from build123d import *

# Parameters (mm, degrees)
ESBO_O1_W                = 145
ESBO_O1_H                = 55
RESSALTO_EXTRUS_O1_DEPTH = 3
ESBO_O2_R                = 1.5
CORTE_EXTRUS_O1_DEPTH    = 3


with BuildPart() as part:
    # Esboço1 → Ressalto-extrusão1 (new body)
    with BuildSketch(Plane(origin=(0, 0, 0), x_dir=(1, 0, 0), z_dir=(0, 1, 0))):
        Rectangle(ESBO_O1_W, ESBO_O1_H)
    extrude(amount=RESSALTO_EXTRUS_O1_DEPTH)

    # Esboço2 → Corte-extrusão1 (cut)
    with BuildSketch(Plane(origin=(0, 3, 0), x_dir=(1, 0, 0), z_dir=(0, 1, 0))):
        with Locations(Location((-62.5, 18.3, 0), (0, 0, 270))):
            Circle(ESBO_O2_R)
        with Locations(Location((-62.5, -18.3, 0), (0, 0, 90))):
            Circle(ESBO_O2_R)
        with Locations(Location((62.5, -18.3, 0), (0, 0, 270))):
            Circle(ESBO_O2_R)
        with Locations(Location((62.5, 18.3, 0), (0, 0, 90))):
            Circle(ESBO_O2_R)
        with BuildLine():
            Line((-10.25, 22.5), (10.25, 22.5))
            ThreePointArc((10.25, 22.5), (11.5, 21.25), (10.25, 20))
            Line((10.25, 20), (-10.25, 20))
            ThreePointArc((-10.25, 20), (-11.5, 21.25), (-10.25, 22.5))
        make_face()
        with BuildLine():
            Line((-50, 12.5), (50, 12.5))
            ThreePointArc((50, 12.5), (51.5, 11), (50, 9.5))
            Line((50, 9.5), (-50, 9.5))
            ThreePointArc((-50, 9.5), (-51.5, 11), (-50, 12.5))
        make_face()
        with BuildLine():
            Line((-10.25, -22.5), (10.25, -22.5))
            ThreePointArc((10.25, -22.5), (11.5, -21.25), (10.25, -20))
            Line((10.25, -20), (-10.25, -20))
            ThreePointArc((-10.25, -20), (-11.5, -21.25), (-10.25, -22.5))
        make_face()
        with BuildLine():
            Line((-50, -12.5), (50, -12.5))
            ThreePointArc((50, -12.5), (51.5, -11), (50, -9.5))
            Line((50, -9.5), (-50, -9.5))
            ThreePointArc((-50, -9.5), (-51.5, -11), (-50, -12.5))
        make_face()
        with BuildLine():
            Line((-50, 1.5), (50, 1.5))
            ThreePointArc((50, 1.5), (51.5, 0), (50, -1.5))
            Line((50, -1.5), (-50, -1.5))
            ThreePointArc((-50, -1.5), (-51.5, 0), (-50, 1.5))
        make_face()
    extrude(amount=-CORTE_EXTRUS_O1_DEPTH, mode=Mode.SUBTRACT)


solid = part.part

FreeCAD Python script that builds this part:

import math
import FreeCAD as App
import Part
import Sketcher

V = App.Vector

doc = App.newDocument("Part")
body = doc.addObject("PartDesign::Body", "Body")

# Sketch on XZ plane
sketch1 = body.newObject("Sketcher::SketchObject", "Sketch")
sketch1.AttachmentSupport = (doc.getObject("XZ_Plane"), [""])
sketch1.MapMode = "FlatFace"
sketch1.addGeometry(Part.LineSegment(V(-72, -28, 0), V(-72, 28, 0)), False)
sketch1.addGeometry(Part.LineSegment(V(-72, 28, 0), V(72, 28, 0)), False)
sketch1.addGeometry(Part.LineSegment(V(72, 28, 0), V(72, -28, 0)), False)
sketch1.addGeometry(Part.LineSegment(V(72, -28, 0), V(-72, -28, 0)), False)
sketch1.addConstraint(Sketcher.Constraint("Coincident", 0, 2, 1, 1))
sketch1.addConstraint(Sketcher.Constraint("Coincident", 1, 2, 2, 1))
sketch1.addConstraint(Sketcher.Constraint("Coincident", 2, 2, 3, 1))
sketch1.addConstraint(Sketcher.Constraint("Coincident", 3, 2, 0, 1))
sketch1.addConstraint(Sketcher.Constraint("Vertical", 0))
sketch1.addConstraint(Sketcher.Constraint("Horizontal", 1))
sketch1.addConstraint(Sketcher.Constraint("Vertical", 2))
sketch1.addConstraint(Sketcher.Constraint("Horizontal", 3))
sketch1.addConstraint(Sketcher.Constraint("Symmetric", 0, 2, 2, 2, -1, 1))
sketch1.addConstraint(Sketcher.Constraint("DistanceX", 1, 1, 1, 2, 145.0))
sketch1.addConstraint(Sketcher.Constraint("DistanceY", 0, 1, 0, 2, 55.0))
pad1 = body.newObject("PartDesign::Pad", "Pad")
pad1.Profile = sketch1
pad1.Length = 3
pad1.Reversed = True

# Sketch on XZ plane
sketch2 = body.newObject("Sketcher::SketchObject", "Sketch001")
sketch2.AttachmentSupport = (doc.getObject("XZ_Plane"), [""])
sketch2.MapMode = "FlatFace"
sketch2.AttachmentOffset = App.Placement(V(0, 0, -3), App.Rotation())
sketch2.addGeometry(Part.Circle(V(-62.5, -18.3, 0), V(0, 0, 1), 1.5), False)
sketch2.addGeometry(Part.Circle(V(-62.5, 18.3, 0), V(0, 0, 1), 1.5), False)
sketch2.addGeometry(Part.Circle(V(62.5, 18.3, 0), V(0, 0, 1), 1.5), False)
sketch2.addGeometry(Part.Circle(V(62.5, -18.3, 0), V(0, 0, 1), 1.5), False)
sketch2.addGeometry(Part.LineSegment(V(10.2, -22.5, 0), V(-10.2, -22.5, 0)), False)
sketch2.addGeometry(Part.ArcOfCircle(Part.Circle(V(-10.2, -21.2, 0), V(0, 0, 1), 1.2), math.radians(90), math.radians(270)), False)
sketch2.addGeometry(Part.LineSegment(V(-10.2, -20, 0), V(10.2, -20, 0)), False)
sketch2.addGeometry(Part.ArcOfCircle(Part.Circle(V(10.2, -21.2, 0), V(0, 0, 1), 1.2), math.radians(-90), math.radians(90)), False)
sketch2.addGeometry(Part.LineSegment(V(50, -12.5, 0), V(-50, -12.5, 0)), False)
sketch2.addGeometry(Part.ArcOfCircle(Part.Circle(V(-50, -11, 0), V(0, 0, 1), 1.5), math.radians(90), math.radians(270)), False)
sketch2.addGeometry(Part.LineSegment(V(-50, -9.5, 0), V(50, -9.5, 0)), False)
sketch2.addGeometry(Part.ArcOfCircle(Part.Circle(V(50, -11, 0), V(0, 0, 1), 1.5), math.radians(-90), math.radians(90)), False)
sketch2.addGeometry(Part.LineSegment(V(-10.2, 22.5, 0), V(10.2, 22.5, 0)), False)
sketch2.addGeometry(Part.ArcOfCircle(Part.Circle(V(10.2, 21.2, 0), V(0, 0, 1), 1.2), math.radians(-90), math.radians(90)), False)
sketch2.addGeometry(Part.LineSegment(V(10.2, 20, 0), V(-10.2, 20, 0)), False)
sketch2.addGeometry(Part.ArcOfCircle(Part.Circle(V(-10.2, 21.2, 0), V(0, 0, 1), 1.2), math.radians(90), math.radians(270)), False)
sketch2.addGeometry(Part.LineSegment(V(-50, 12.5, 0), V(50, 12.5, 0)), False)
sketch2.addGeometry(Part.ArcOfCircle(Part.Circle(V(50, 11, 0), V(0, 0, 1), 1.5), math.radians(-90), math.radians(90)), False)
sketch2.addGeometry(Part.LineSegment(V(50, 9.5, 0), V(-50, 9.5, 0)), False)
sketch2.addGeometry(Part.ArcOfCircle(Part.Circle(V(-50, 11, 0), V(0, 0, 1), 1.5), math.radians(90), math.radians(270)), False)
sketch2.addGeometry(Part.LineSegment(V(50, -1.5, 0), V(-50, -1.5, 0)), False)
sketch2.addGeometry(Part.ArcOfCircle(Part.Circle(V(-50, 0, 0), V(0, 0, 1), 1.5), math.radians(90), math.radians(270)), False)
sketch2.addGeometry(Part.LineSegment(V(-50, 1.5, 0), V(50, 1.5, 0)), False)
sketch2.addGeometry(Part.ArcOfCircle(Part.Circle(V(50, 0, 0), V(0, 0, 1), 1.5), math.radians(-90), math.radians(90)), False)
sketch2.addConstraint(Sketcher.Constraint("Tangent", 4, 2, 5, 2))
sketch2.addConstraint(Sketcher.Constraint("Tangent", 5, 1, 6, 1))
sketch2.addConstraint(Sketcher.Constraint("Tangent", 6, 2, 7, 2))
sketch2.addConstraint(Sketcher.Constraint("Tangent", 7, 1, 4, 1))
sketch2.addConstraint(Sketcher.Constraint("Tangent", 8, 2, 9, 2))
sketch2.addConstraint(Sketcher.Constraint("Tangent", 9, 1, 10, 1))
sketch2.addConstraint(Sketcher.Constraint("Tangent", 10, 2, 11, 2))
sketch2.addConstraint(Sketcher.Constraint("Tangent", 11, 1, 8, 1))
sketch2.addConstraint(Sketcher.Constraint("Tangent", 12, 2, 13, 2))
sketch2.addConstraint(Sketcher.Constraint("Tangent", 13, 1, 14, 1))
sketch2.addConstraint(Sketcher.Constraint("Tangent", 14, 2, 15, 2))
sketch2.addConstraint(Sketcher.Constraint("Tangent", 15, 1, 12, 1))
sketch2.addConstraint(Sketcher.Constraint("Tangent", 16, 2, 17, 2))
sketch2.addConstraint(Sketcher.Constraint("Tangent", 17, 1, 18, 1))
sketch2.addConstraint(Sketcher.Constraint("Tangent", 18, 2, 19, 2))
sketch2.addConstraint(Sketcher.Constraint("Tangent", 19, 1, 16, 1))
sketch2.addConstraint(Sketcher.Constraint("Tangent", 20, 2, 21, 2))
sketch2.addConstraint(Sketcher.Constraint("Tangent", 21, 1, 22, 1))
sketch2.addConstraint(Sketcher.Constraint("Tangent", 22, 2, 23, 2))
sketch2.addConstraint(Sketcher.Constraint("Tangent", 23, 1, 20, 1))
sketch2.addConstraint(Sketcher.Constraint("Horizontal", 4))
sketch2.addConstraint(Sketcher.Constraint("Horizontal", 6))
sketch2.addConstraint(Sketcher.Constraint("Horizontal", 8))
sketch2.addConstraint(Sketcher.Constraint("Horizontal", 10))
sketch2.addConstraint(Sketcher.Constraint("Horizontal", 12))
sketch2.addConstraint(Sketcher.Constraint("Horizontal", 14))
sketch2.addConstraint(Sketcher.Constraint("Horizontal", 16))
sketch2.addConstraint(Sketcher.Constraint("Horizontal", 18))
sketch2.addConstraint(Sketcher.Constraint("Horizontal", 20))
sketch2.addConstraint(Sketcher.Constraint("Horizontal", 22))
sketch2.addConstraint(Sketcher.Constraint("Equal", 0, 1))
sketch2.addConstraint(Sketcher.Constraint("Equal", 1, 2))
sketch2.addConstraint(Sketcher.Constraint("Equal", 2, 3))
sketch2.addConstraint(Sketcher.Constraint("Equal", 3, 9))
sketch2.addConstraint(Sketcher.Constraint("Equal", 7, 13))
sketch2.addConstraint(Sketcher.Constraint("Equal", 11, 17))
sketch2.addConstraint(Sketcher.Constraint("Equal", 19, 21))
sketch2.addConstraint(Sketcher.Constraint("Symmetric", 0, 3, 2, 3, -1, 1))
sketch2.addConstraint(Sketcher.Constraint("Symmetric", 1, 3, 3, 3, -1, 1))
sketch2.addConstraint(Sketcher.Constraint("Symmetric", 5, 3, 13, 3, -1, 1))
sketch2.addConstraint(Sketcher.Constraint("Symmetric", 9, 3, 17, 3, -1, 1))
sketch2.addConstraint(Sketcher.Constraint("Symmetric", 21, 3, 23, 3, -1, 1))
sketch2.addConstraint(Sketcher.Constraint("Symmetric", 1, 3, 2, 3, -2))
sketch2.addConstraint(Sketcher.Constraint("Vertical", 7, 3, 13, 3))
sketch2.addConstraint(Sketcher.Constraint("Vertical", 5, 3, 15, 3))
sketch2.addConstraint(Sketcher.Constraint("Vertical", 11, 3, 17, 3))
sketch2.addConstraint(Sketcher.Constraint("Vertical", 9, 3, 19, 3))
sketch2.addConstraint(Sketcher.Constraint("Vertical", 19, 3, 21, 3))
sketch2.addConstraint(Sketcher.Constraint("Diameter", 0, 3.0))
sketch2.addConstraint(Sketcher.Constraint("DistanceX", 8, 2, 8, 1, 100.0))
sketch2.addConstraint(Sketcher.Constraint("Radius", 5, 1.25))
sketch2.addConstraint(Sketcher.Constraint("DistanceX", 4, 2, 4, 1, 20.5))
sketch2.addConstraint(Sketcher.Constraint("DistanceY", 9, 3, -1, 1, 11.0))
sketch2.addConstraint(Sketcher.Constraint("DistanceY", 5, 1, -1, 1, 20.0))
sketch2.addConstraint(Sketcher.Constraint("DistanceX", 1, 3, 2, 3, 125.0))
sketch2.addConstraint(Sketcher.Constraint("DistanceY", 0, 3, -1, 1, 18.3))
pocket1 = body.newObject("PartDesign::Pocket", "Pocket")
pocket1.Profile = sketch2
pocket1.Length = 3
pocket1.Reversed = True

doc.recompute()
